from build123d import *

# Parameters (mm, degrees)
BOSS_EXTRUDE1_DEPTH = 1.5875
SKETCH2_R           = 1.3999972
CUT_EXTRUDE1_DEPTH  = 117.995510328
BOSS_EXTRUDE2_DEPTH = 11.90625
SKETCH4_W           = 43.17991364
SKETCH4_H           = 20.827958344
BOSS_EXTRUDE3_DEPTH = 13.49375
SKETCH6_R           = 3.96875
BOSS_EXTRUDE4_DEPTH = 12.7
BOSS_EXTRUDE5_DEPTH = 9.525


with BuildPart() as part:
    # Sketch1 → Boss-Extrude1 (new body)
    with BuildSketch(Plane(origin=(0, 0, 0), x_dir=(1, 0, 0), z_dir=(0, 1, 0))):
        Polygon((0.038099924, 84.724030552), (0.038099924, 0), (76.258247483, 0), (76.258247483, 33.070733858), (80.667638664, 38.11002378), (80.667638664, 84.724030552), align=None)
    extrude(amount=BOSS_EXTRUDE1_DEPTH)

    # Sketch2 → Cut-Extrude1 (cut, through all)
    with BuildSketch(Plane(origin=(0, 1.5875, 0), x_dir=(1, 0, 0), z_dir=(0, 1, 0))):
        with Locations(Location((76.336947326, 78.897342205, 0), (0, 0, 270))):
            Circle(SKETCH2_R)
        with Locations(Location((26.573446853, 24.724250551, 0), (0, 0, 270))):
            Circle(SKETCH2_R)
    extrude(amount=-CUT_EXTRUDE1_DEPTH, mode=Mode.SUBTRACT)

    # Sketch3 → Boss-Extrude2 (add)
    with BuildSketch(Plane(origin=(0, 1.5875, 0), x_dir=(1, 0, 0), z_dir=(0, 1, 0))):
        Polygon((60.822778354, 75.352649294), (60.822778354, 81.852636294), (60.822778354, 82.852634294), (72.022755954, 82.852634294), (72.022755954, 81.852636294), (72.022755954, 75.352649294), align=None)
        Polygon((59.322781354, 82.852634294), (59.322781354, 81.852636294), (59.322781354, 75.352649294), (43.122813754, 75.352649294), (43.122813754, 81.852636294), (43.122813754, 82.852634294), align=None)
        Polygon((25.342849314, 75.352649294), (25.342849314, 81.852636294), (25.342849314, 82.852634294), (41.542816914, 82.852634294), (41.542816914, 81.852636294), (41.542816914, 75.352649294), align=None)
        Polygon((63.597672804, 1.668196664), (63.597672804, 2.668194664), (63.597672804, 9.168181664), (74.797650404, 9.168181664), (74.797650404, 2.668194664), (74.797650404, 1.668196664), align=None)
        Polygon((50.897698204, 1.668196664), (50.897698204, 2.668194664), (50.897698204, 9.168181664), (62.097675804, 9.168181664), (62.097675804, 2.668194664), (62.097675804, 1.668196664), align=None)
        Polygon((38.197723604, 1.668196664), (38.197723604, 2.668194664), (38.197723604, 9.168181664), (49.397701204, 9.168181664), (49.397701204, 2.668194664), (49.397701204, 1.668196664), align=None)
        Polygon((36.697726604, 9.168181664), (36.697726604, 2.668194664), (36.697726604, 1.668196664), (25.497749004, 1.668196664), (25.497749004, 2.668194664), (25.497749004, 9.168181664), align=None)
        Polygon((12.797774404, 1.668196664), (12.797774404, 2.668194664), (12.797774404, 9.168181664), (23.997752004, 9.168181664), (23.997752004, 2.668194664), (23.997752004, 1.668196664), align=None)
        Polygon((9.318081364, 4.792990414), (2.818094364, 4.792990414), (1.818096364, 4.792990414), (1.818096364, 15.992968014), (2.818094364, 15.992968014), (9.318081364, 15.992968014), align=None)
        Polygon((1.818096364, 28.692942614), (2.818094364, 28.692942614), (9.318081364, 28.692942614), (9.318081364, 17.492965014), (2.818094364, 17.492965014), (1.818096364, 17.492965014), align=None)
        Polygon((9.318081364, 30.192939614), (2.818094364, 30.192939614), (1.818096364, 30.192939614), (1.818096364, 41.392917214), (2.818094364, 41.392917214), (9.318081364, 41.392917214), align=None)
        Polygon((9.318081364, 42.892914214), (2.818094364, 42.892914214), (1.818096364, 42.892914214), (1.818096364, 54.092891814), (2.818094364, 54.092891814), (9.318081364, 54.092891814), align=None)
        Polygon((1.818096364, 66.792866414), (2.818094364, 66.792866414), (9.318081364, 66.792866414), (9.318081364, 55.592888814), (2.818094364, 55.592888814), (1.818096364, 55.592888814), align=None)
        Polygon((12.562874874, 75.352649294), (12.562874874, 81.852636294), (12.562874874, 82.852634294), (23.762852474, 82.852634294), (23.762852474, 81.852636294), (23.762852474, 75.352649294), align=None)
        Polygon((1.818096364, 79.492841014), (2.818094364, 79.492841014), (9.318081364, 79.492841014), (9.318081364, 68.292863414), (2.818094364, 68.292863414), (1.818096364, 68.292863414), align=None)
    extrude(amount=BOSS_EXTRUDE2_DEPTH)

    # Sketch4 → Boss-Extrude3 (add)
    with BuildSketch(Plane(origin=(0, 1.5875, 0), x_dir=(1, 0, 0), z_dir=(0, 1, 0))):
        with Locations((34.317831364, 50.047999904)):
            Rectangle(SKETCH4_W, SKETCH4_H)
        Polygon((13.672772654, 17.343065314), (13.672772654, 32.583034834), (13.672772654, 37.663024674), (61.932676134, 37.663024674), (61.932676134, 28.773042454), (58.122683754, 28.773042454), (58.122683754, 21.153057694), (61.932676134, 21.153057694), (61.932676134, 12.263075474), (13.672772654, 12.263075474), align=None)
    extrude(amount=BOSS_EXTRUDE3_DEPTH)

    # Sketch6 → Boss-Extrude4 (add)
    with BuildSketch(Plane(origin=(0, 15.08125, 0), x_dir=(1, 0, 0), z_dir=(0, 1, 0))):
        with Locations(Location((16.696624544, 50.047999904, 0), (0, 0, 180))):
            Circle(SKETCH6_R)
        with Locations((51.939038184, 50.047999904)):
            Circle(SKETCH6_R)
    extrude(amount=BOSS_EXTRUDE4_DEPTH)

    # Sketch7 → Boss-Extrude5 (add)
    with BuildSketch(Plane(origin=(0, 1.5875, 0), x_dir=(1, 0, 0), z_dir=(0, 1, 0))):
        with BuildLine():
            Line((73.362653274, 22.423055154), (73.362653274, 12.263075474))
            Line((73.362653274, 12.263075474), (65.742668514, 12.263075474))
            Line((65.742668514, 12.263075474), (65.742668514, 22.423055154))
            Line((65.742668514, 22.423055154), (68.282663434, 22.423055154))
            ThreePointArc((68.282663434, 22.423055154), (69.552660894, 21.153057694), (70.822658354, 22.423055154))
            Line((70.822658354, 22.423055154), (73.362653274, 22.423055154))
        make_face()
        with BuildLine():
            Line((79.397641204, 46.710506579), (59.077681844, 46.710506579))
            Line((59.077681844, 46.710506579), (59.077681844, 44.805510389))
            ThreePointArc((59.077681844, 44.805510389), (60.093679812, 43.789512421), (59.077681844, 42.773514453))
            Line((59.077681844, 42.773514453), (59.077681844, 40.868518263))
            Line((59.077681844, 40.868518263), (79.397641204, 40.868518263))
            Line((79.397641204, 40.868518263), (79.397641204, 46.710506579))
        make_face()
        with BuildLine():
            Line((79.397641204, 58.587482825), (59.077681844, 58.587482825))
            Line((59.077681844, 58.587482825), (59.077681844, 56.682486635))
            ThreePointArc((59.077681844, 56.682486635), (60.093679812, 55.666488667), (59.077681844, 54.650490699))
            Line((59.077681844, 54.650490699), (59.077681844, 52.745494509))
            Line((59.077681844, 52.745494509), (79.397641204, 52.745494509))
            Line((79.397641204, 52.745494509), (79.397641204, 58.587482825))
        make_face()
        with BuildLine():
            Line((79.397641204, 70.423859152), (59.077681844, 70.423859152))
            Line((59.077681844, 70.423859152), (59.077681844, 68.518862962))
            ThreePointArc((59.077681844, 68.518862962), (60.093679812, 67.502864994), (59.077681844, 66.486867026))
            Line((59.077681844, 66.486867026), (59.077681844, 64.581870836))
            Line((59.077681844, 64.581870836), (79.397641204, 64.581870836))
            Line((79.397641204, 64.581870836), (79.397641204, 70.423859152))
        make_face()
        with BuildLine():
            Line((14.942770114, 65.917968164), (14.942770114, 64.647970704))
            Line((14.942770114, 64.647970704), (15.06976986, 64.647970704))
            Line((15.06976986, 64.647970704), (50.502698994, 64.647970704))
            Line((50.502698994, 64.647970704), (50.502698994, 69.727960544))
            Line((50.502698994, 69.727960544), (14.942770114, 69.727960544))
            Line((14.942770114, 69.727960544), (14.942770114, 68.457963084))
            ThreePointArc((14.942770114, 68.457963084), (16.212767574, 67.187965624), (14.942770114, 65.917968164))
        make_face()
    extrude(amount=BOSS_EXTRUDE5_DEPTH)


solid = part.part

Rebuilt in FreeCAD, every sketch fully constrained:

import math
import FreeCAD as App
import Part
import Sketcher
from FreeCAD import Vector
Q = App.Units.Quantity


def add_polygon(sketch, points):
    """Adds a closed chain of lines whose ends are joined by coincident constraints."""
    first, n = sketch.GeometryCount, len(points)
    for a, b in zip(points, points[1:] + points[:1]):
        sketch.addGeometry(Part.LineSegment(App.Vector(*a, 0), App.Vector(*b, 0)), False)
    for i in range(n):
        sketch.addConstraint(Sketcher.Constraint("Coincident", first + i, 2, first + (i + 1) % n, 1))

doc = App.newDocument("Part")
params = doc.addObject("Spreadsheet::Sheet", "Params")
for row, (alias, value) in enumerate([
    ("pad1_length", "0.0625 in"),
    ("pad2_length", "0.46875 in"),
    ("pad3_length", "0.53125 in"),
    ("sketch5_diameter", "0.3125 in"),
    ("pad4_length", "0.5 in"),
    ("sketch6_radius", "0.0499999 in"),
    ("sketch6_radius2", "0.0399999 in"),
    ("sketch6_height", "0.0499999 in"),
    ("sketch6_height2", "0.0749998 in"),
    ("pad5_length", "0.375 in"),
], start=1):
    params.set(f"A{row}", alias)
    params.set(f"B{row}", "=" + value)
    params.setAlias(f"B{row}", alias)

body = doc.addObject("PartDesign::Body", "Body")

# Sketch on XZ plane
sketch1 = body.newObject("Sketcher::SketchObject", "Sketch")
sketch1.AttachmentSupport = (doc.getObject("XZ_Plane"), [""])
sketch1.MapMode = "FlatFace"
add_polygon(sketch1, [(0, -85), (0, 0), (76, 0), (76, -33), (81, -38), (81, -85)])  # lines 0-5
sketch1.addConstraint([
    Sketcher.Constraint("Vertical", 0),
    Sketcher.Constraint("Horizontal", 1),
    Sketcher.Constraint("Vertical", 2),
    Sketcher.Constraint("Vertical", 4),
    Sketcher.Constraint("Horizontal", 5),
    Sketcher.Constraint("PointOnObject", 0, 2, -1),
    Sketcher.Constraint("DistanceX", -1, 1, 0, 2, Q("0.0015 in")),
    Sketcher.Constraint("DistanceX", 5, 2, 5, 1, 80.629539),
    Sketcher.Constraint("DistanceY", 0, 1, 0, 2, 84.724031),
    Sketcher.Constraint("DistanceX", 1, 1, 1, 2, 76.220148),
    Sketcher.Constraint("DistanceY", 2, 2, 2, 1, 33.070734),
    Sketcher.Constraint("DistanceY", 4, 2, 4, 1, 46.614007),
])
pad1 = body.newObject("PartDesign::Pad", "Pad")
pad1.Profile = sketch1
pad1.setExpression("Length", "Params.pad1_length")
pad1.Reversed = True

# Sketch on XZ plane
sketch2 = body.newObject("Sketcher::SketchObject", "Sketch001")
sketch2.AttachmentSupport = (doc.getObject("XZ_Plane"), [""])
sketch2.MapMode = "FlatFace"
sketch2.AttachmentOffset = App.Placement(Vector(0, 0, -0.0625 * 25.4), App.Rotation())
sketch2.addGeometry([
    Part.Circle(Vector(76.3, -78.9, 0), Vector(0, 0, 1), 1.4),
    Part.Circle(Vector(26.6, -24.7, 0), Vector(0, 0, 1), 1.4),
], False)
sketch2.addConstraint([
    Sketcher.Constraint("Equal", 0, 1),
    Sketcher.Constraint("Diameter", 0, 2.799994),
    Sketcher.Constraint("DistanceX", 1, 3, 0, 3, 49.7635),
    Sketcher.Constraint("DistanceY", 1, 3, -1, 1, 24.724251),
    Sketcher.Constraint("DistanceY", 0, 3, 1, 3, 54.173092),
    Sketcher.Constraint("DistanceX", -1, 1, 0, 3, 76.336947),
])
pocket1 = body.newObject("PartDesign::Pocket", "Pocket")
pocket1.Profile = sketch2
pocket1.Type = "ThroughAll"
pocket1.Reversed = True

# Sketch on XZ plane
sketch3 = body.newObject("Sketcher::SketchObject", "Sketch002")
sketch3.AttachmentSupport = (doc.getObject("XZ_Plane"), [""])
sketch3.MapMode = "FlatFace"
sketch3.AttachmentOffset = App.Placement(Vector(0, 0, -0.0625 * 25.4), App.Rotation())
add_polygon(sketch3, [(61, -83), (61, -75), (72, -75), (72, -83)])  # lines 0-3
add_polygon(sketch3, [(59, -75), (59, -83), (43, -83), (43, -75)])  # lines 4-7
add_polygon(sketch3, [(25, -83), (25, -75), (42, -75), (42, -83)])  # lines 8-11
add_polygon(sketch3, [(64, -9), (64, -2), (75, -2), (75, -9)])  # lines 12-15
add_polygon(sketch3, [(51, -9), (51, -2), (62, -2), (62, -9)])  # lines 16-19
add_polygon(sketch3, [(38, -9), (38, -2), (49, -2), (49, -9)])  # lines 20-23
add_polygon(sketch3, [(37, -2), (37, -9), (25, -9), (25, -2)])  # lines 24-27
add_polygon(sketch3, [(13, -9), (13, -2), (24, -2), (24, -9)])  # lines 28-31
add_polygon(sketch3, [(2, -5), (9, -5), (9, -16), (2, -16)])  # lines 32-35
add_polygon(sketch3, [(9, -29), (2, -29), (2, -17), (9, -17)])  # lines 36-39
add_polygon(sketch3, [(2, -30), (9, -30), (9, -41), (2, -41)])  # lines 40-43
add_polygon(sketch3, [(2, -43), (9, -43), (9, -54), (2, -54)])  # lines 44-47
add_polygon(sketch3, [(9, -67), (2, -67), (2, -56), (9, -56)])  # lines 48-51
add_polygon(sketch3, [(13, -83), (13, -75), (24, -75), (24, -83)])  # lines 52-55
add_polygon(sketch3, [(9, -79), (2, -79), (2, -68), (9, -68)])  # lines 56-59
sketch3.addConstraint([
    Sketcher.Constraint("Vertical", 0),
    Sketcher.Constraint("Horizontal", 1),
    Sketcher.Constraint("Vertical", 2),
    Sketcher.Constraint("Horizontal", 3),
    Sketcher.Constraint("Vertical", 4),
    Sketcher.Constraint("Horizontal", 5),
    Sketcher.Constraint("Vertical", 6),
    Sketcher.Constraint("Horizontal", 7),
    Sketcher.Constraint("Vertical", 8),
    Sketcher.Constraint("Horizontal", 9),
    Sketcher.Constraint("Vertical", 10),
    Sketcher.Constraint("Horizontal", 11),
    Sketcher.Constraint("Vertical", 12),
    Sketcher.Constraint("Horizontal", 13),
    Sketcher.Constraint("Vertical", 14),
    Sketcher.Constraint("Horizontal", 15),
    Sketcher.Constraint("Vertical", 16),
    Sketcher.Constraint("Horizontal", 17),
    Sketcher.Constraint("Vertical", 18),
    Sketcher.Constraint("Horizontal", 19),
    Sketcher.Constraint("Vertical", 20),
    Sketcher.Constraint("Horizontal", 21),
    Sketcher.Constraint("Vertical", 22),
    Sketcher.Constraint("Horizontal", 23),
    Sketcher.Constraint("Vertical", 24),
    Sketcher.Constraint("Horizontal", 25),
    Sketcher.Constraint("Vertical", 26),
    Sketcher.Constraint("Horizontal", 27),
    Sketcher.Constraint("Vertical", 28),
    Sketcher.Constraint("Horizontal", 29),
    Sketcher.Constraint("Vertical", 30),
    Sketcher.Constraint("Horizontal", 31),
    Sketcher.Constraint("Horizontal", 32),
    Sketcher.Constraint("Vertical", 33),
    Sketcher.Constraint("Horizontal", 34),
    Sketcher.Constraint("Vertical", 35),
    Sketcher.Constraint("Horizontal", 36),
    Sketcher.Constraint("Vertical", 37),
    Sketcher.Constraint("Horizontal", 38),
    Sketcher.Constraint("Vertical", 39),
    Sketcher.Constraint("Horizontal", 40),
    Sketcher.Constraint("Vertical", 41),
    Sketcher.Constraint("Horizontal", 42),
    Sketcher.Constraint("Vertical", 43),
    Sketcher.Constraint("Horizontal", 44),
    Sketcher.Constraint("Vertical", 45),
    Sketcher.Constraint("Horizontal", 46),
    Sketcher.Constraint("Vertical", 47),
    Sketcher.Constraint("Horizontal", 48),
    Sketcher.Constraint("Vertical", 49),
    Sketcher.Constraint("Horizontal", 50),
    Sketcher.Constraint("Vertical", 51),
    Sketcher.Constraint("Vertical", 52),
    Sketcher.Constraint("Horizontal", 53),
    Sketcher.Constraint("Vertical", 54),
    Sketcher.Constraint("Horizontal", 55),
    Sketcher.Constraint("Horizontal", 56),
    Sketcher.Constraint("Vertical", 57),
    Sketcher.Constraint("Horizontal", 58),
    Sketcher.Constraint("Vertical", 59),
    Sketcher.Constraint("Horizontal", 3, 2, 4, 2),
    Sketcher.Constraint("Horizontal", 1, 2, 6, 2),
    Sketcher.Constraint("Horizontal", 7, 2, 8, 2),
    Sketcher.Constraint("Horizontal", 5, 2, 10, 2),
    Sketcher.Constraint("Horizontal", 13, 2, 16, 2),
    Sketcher.Constraint("Horizontal", 15, 2, 18, 2),
    Sketcher.Constraint("Horizontal", 17, 2, 20, 2),
    Sketcher.Constraint("Horizontal", 19, 2, 22, 2),
    Sketcher.Constraint("Horizontal", 23, 2, 24, 2),
    Sketcher.Constraint("Horizontal", 21, 2, 26, 2),
    Sketcher.Constraint("Horizontal", 27, 2, 28, 2),
    Sketcher.Constraint("Horizontal", 25, 2, 30, 2),
    Sketcher.Constraint("Horizontal", 9, 2, 52, 2),
    Sketcher.Constraint("Horizontal", 11, 2, 54, 2),
    Sketcher.Constraint("Vertical", 35, 2, 36, 2),
    Sketcher.Constraint("Vertical", 33, 2, 38, 2),
    Sketcher.Constraint("Vertical", 39, 2, 40, 2),
    Sketcher.Constraint("Vertical", 37, 2, 42, 2),
    Sketcher.Constraint("Vertical", 41, 2, 44, 2),
    Sketcher.Constraint("Vertical", 43, 2, 46, 2),
    Sketcher.Constraint("Vertical", 47, 2, 48, 2),
    Sketcher.Constraint("Vertical", 45, 2, 50, 2),
    Sketcher.Constraint("Vertical", 49, 2, 56, 2),
    Sketcher.Constraint("Vertical", 51, 2, 58, 2),
    Sketcher.Constraint("Equal", 7, 9),
    Sketcher.Constraint("Equal", 3, 13),
    Sketcher.Constraint("Equal", 15, 17),
    Sketcher.Constraint("Equal", 19, 21),
    Sketcher.Constraint("Equal", 23, 25),
    Sketcher.Constraint("Equal", 27, 29),
    Sketcher.Constraint("Equal", 31, 53),
    Sketcher.Constraint("Equal", 58, 0),
    Sketcher.Constraint("Equal", 10, 12),
    Sketcher.Constraint("Equal", 55, 33),
    Sketcher.Constraint("Equal", 35, 37),
    Sketcher.Constraint("Equal", 39, 41),
    Sketcher.Constraint("Equal", 43, 45),
    Sketcher.Constraint("Equal", 47, 49),
    Sketcher.Constraint("Equal", 51, 57),
    Sketcher.Constraint("DistanceX", -1, 1, 16, 2, 50.897698),
    Sketcher.Constraint("DistanceX", -1, 1, 21, 2, 49.397701),
    Sketcher.Constraint("DistanceX", 1, 1, 1, 2, 11.199978),
    Sketcher.Constraint("DistanceX", 5, 2, 5, 1, 16.199968),
    Sketcher.Constraint("DistanceX", 32, 1, 32, 2, 7.499985),
    Sketcher.Constraint("DistanceX", -1, 1, 0, 2, 60.822778),
    Sketcher.Constraint("DistanceY", 0, 2, -1, 1, 75.352649),
    Sketcher.Constraint("DistanceX", -1, 1, 4, 2, 59.322781),
    Sketcher.Constraint("DistanceX", -1, 1, 8, 2, 25.342849),
    Sketcher.Constraint("DistanceX", -1, 1, 13, 2, 74.79765),
    Sketcher.Constraint("DistanceY", 14, 2, -1, 1, 9.168182),
    Sketcher.Constraint("DistanceX", -1, 1, 25, 2, 25.497749),
    Sketcher.Constraint("DistanceX", -1, 1, 32, 2, 9.318081),
    Sketcher.Constraint("DistanceY", 32, 2, -1, 1, 4.79299),
    Sketcher.Constraint("DistanceY", 40, 2, -1, 1, 30.19294),
    Sketcher.Constraint("DistanceY", 45, 2, -1, 1, 54.092892),
    Sketcher.Constraint("DistanceY", 49, 2, -1, 1, 55.592889),
    Sketcher.Constraint("DistanceY", 56, 2, -1, 1, 79.492841),
    Sketcher.Constraint("DistanceX", 28, 2, 20, 2, 25.399949),
    Sketcher.Constraint("DistanceY", 36, 2, 31, 2, 19.524761),
    Sketcher.Constraint("DistanceX", 48, 2, 52, 2, 10.744779),
])
pad2 = body.newObject("PartDesign::Pad", "Pad001")
pad2.Profile = sketch3
pad2.setExpression("Length", "Params.pad2_length")
pad2.Reversed = True

# Sketch on XZ plane
sketch4 = body.newObject("Sketcher::SketchObject", "Sketch003")
sketch4.AttachmentSupport = (doc.getObject("XZ_Plane"), [""])
sketch4.MapMode = "FlatFace"
sketch4.AttachmentOffset = App.Placement(Vector(0, 0, -0.0625 * 25.4), App.Rotation())
add_polygon(sketch4, [(12.7, -60.5), (12.7, -39.6), (55.9, -39.6), (55.9, -60.5)])  # lines 0-3
add_polygon(sketch4, [(13.7, -37.7), (13.7, -12.3), (61.9, -12.3), (61.9, -21.2), (58.1, -21.2), (58.1, -28.8), (61.9, -28.8), (61.9, -37.7)])  # lines 4-11
sketch4.addConstraint([
    Sketcher.Constraint("Vertical", 0),
    Sketcher.Constraint("Horizontal", 1),
    Sketcher.Constraint("Vertical", 2),
    Sketcher.Constraint("Horizontal", 3),
    Sketcher.Constraint("Vertical", 4),
    Sketcher.Constraint("Horizontal", 5),
    Sketcher.Constraint("Vertical", 6),
    Sketcher.Constraint("Horizontal", 7),
    Sketcher.Constraint("Vertical", 8),
    Sketcher.Constraint("Horizontal", 9),
    Sketcher.Constraint("Vertical", 10),
    Sketcher.Constraint("Horizontal", 11),
    Sketcher.Constraint("Vertical", 6, 2, 9, 2),
    Sketcher.Constraint("Equal", 6, 10),
    Sketcher.Constraint("DistanceY", 0, 1, 0, 2, 20.827958),
    Sketcher.Constraint("DistanceY", 4, 1, 4, 2, 25.399949),
    Sketcher.Constraint("DistanceX", 0, 2, 4, 2, 0.944898),
    Sketcher.Constraint("DistanceX", 0, 2, 5, 2, 49.204802),
    Sketcher.Constraint("DistanceX", 1, 1, 1, 2, 43.179914),
    Sketcher.Constraint("DistanceX", 7, 2, 7, 1, 3.809992),
    Sketcher.Constraint("DistanceY", 6, 2, 6, 1, 8.889982),
    Sketcher.Constraint("DistanceY", 0, 2, -1, 1, 39.634021),
    Sketcher.Constraint("DistanceX", -1, 1, 1, 2, 55.907788),
    Sketcher.Constraint("DistanceY", 2, 2, 6, 2, 39.308921),
])
pad3 = body.newObject("PartDesign::Pad", "Pad002")
pad3.Profile = sketch4
pad3.setExpression("Length", "Params.pad3_length")
pad3.Reversed = True

# Sketch on XZ plane
sketch5 = body.newObject("Sketcher::SketchObject", "Sketch004")
sketch5.AttachmentSupport = (doc.getObject("XZ_Plane"), [""])
sketch5.MapMode = "FlatFace"
sketch5.AttachmentOffset = App.Placement(Vector(0, 0, -0.59375 * 25.4), App.Rotation())
sketch5.addGeometry([
    Part.Circle(Vector(16.7, -50, 0), Vector(0, 0, 1), 4),
    Part.Circle(Vector(51.9, -50, 0), Vector(0, 0, 1), 4),
], False)
sketch5.addConstraint([
    Sketcher.Constraint("Equal", 0, 1),
    Sketcher.Constraint("Horizontal", 0, 3, 1, 3),
    Sketcher.Constraint("Diameter", 0, Q("0.3125 in")),
    Sketcher.Constraint("DistanceY", 0, 3, -1, 1, 50.048),
    Sketcher.Constraint("DistanceX", -1, 1, 1, 3, 51.939038),
    Sketcher.Constraint("DistanceX", -1, 1, 0, 3, 16.696625),
])
sketch5.setExpression("Constraints[2]", "Params.sketch5_diameter")
pad4 = body.newObject("PartDesign::Pad", "Pad003")
pad4.Profile = sketch5
pad4.setExpression("Length", "Params.pad4_length")
pad4.Reversed = True

# Sketch on XZ plane
sketch6 = body.newObject("Sketcher::SketchObject", "Sketch005")
sketch6.AttachmentSupport = (doc.getObject("XZ_Plane"), [""])
sketch6.MapMode = "FlatFace"
sketch6.AttachmentOffset = App.Placement(Vector(0, 0, -0.0625 * 25.4), App.Rotation())
sketch6.addGeometry([
    Part.LineSegment(Vector(73.4, -12.3, 0), Vector(73.4, -22.4, 0)),  # 0
    Part.LineSegment(Vector(73.4, -22.4, 0), Vector(70.8, -22.4, 0)),  # 1
    Part.ArcOfCircle(Part.Circle(Vector(69.6, -22.4, 0), Vector(0, 0, 1), 1.3), math.radians(0), math.radians(180)),  # 2
    Part.LineSegment(Vector(68.3, -22.4, 0), Vector(65.7, -22.4, 0)),  # 3
    Part.LineSegment(Vector(65.7, -22.4, 0), Vector(65.7, -12.3, 0)),  # 4
    Part.LineSegment(Vector(65.7, -12.3, 0), Vector(73.4, -12.3, 0)),  # 5
    Part.LineSegment(Vector(79.4, -46.7, 0), Vector(59.1, -46.7, 0)),  # 6
    Part.LineSegment(Vector(59.1, -46.7, 0), Vector(59.1, -44.8, 0)),  # 7
    Part.ArcOfCircle(Part.Circle(Vector(59.1, -43.8, 0), Vector(0, 0, 1), 1), math.radians(-90), math.radians(90)),  # 8
    Part.LineSegment(Vector(59.1, -42.8, 0), Vector(59.1, -40.9, 0)),  # 9
    Part.LineSegment(Vector(59.1, -40.9, 0), Vector(79.4, -40.9, 0)),  # 10
    Part.LineSegment(Vector(79.4, -40.9, 0), Vector(79.4, -46.7, 0)),  # 11
    Part.LineSegment(Vector(79.4, -58.6, 0), Vector(59.1, -58.6, 0)),  # 12
    Part.LineSegment(Vector(59.1, -58.6, 0), Vector(59.1, -56.7, 0)),  # 13
    Part.ArcOfCircle(Part.Circle(Vector(59.1, -55.7, 0), Vector(0, 0, 1), 1), math.radians(-90), math.radians(90)),  # 14
    Part.LineSegment(Vector(59.1, -54.7, 0), Vector(59.1, -52.7, 0)),  # 15
    Part.LineSegment(Vector(59.1, -52.7, 0), Vector(79.4, -52.7, 0)),  # 16
    Part.LineSegment(Vector(79.4, -52.7, 0), Vector(79.4, -58.6, 0)),  # 17
    Part.LineSegment(Vector(79.4, -70.4, 0), Vector(59.1, -70.4, 0)),  # 18
    Part.LineSegment(Vector(59.1, -70.4, 0), Vector(59.1, -68.5, 0)),  # 19
    Part.ArcOfCircle(Part.Circle(Vector(59.1, -67.5, 0), Vector(0, 0, 1), 1), math.radians(-90), math.radians(90)),  # 20
    Part.LineSegment(Vector(59.1, -66.5, 0), Vector(59.1, -64.6, 0)),  # 21
    Part.LineSegment(Vector(59.1, -64.6, 0), Vector(79.4, -64.6, 0)),  # 22
    Part.LineSegment(Vector(79.4, -64.6, 0), Vector(79.4, -70.4, 0)),  # 23
    Part.LineSegment(Vector(14.9, -65.9, 0), Vector(14.9, -64.6, 0)),  # 24
    Part.LineSegment(Vector(14.9, -64.6, 0), Vector(50.5, -64.6, 0)),  # 25
    Part.LineSegment(Vector(50.5, -64.6, 0), Vector(50.5, -69.7, 0)),  # 26
    Part.LineSegment(Vector(50.5, -69.7, 0), Vector(14.9, -69.7, 0)),  # 27
    Part.LineSegment(Vector(14.9, -69.7, 0), Vector(14.9, -68.5, 0)),  # 28
    Part.ArcOfCircle(Part.Circle(Vector(14.9, -67.2, 0), Vector(0, 0, 1), 1.3), math.radians(-90), math.radians(90)),  # 29
], False)
sketch6.addConstraint([
    Sketcher.Constraint("Coincident", 0, 2, 1, 1),
    Sketcher.Constraint("Coincident", 1, 2, 2, 1),
    Sketcher.Constraint("Coincident", 2, 2, 3, 1),
    Sketcher.Constraint("Coincident", 3, 2, 4, 1),
    Sketcher.Constraint("Coincident", 4, 2, 5, 1),
    Sketcher.Constraint("Coincident", 5, 2, 0, 1),
    Sketcher.Constraint("Coincident", 6, 2, 7, 1),
    Sketcher.Constraint("Coincident", 7, 2, 8, 1),
    Sketcher.Constraint("Coincident", 8, 2, 9, 1),
    Sketcher.Constraint("Coincident", 9, 2, 10, 1),
    Sketcher.Constraint("Coincident", 10, 2, 11, 1),
    Sketcher.Constraint("Coincident", 11, 2, 6, 1),
    Sketcher.Constraint("Coincident", 12, 2, 13, 1),
    Sketcher.Constraint("Coincident", 13, 2, 14, 1),
    Sketcher.Constraint("Coincident", 14, 2, 15, 1),
    Sketcher.Constraint("Coincident", 15, 2, 16, 1),
    Sketcher.Constraint("Coincident", 16, 2, 17, 1),
    Sketcher.Constraint("Coincident", 17, 2, 12, 1),
    Sketcher.Constraint("Coincident", 18, 2, 19, 1),
    Sketcher.Constraint("Coincident", 19, 2, 20, 1),
    Sketcher.Constraint("Coincident", 20, 2, 21, 1),
    Sketcher.Constraint("Coincident", 21, 2, 22, 1),
    Sketcher.Constraint("Coincident", 22, 2, 23, 1),
    Sketcher.Constraint("Coincident", 23, 2, 18, 1),
    Sketcher.Constraint("Coincident", 24, 2, 25, 1),
    Sketcher.Constraint("Coincident", 25, 2, 26, 1),
    Sketcher.Constraint("Coincident", 26, 2, 27, 1),
    Sketcher.Constraint("Coincident", 27, 2, 28, 1),
    Sketcher.Constraint("Coincident", 28, 2, 29, 1),
    Sketcher.Constraint("Coincident", 29, 2, 24, 1),
    Sketcher.Constraint("Vertical", 0),
    Sketcher.Constraint("Horizontal", 1),
    Sketcher.Constraint("Horizontal", 3),
    Sketcher.Constraint("Vertical", 4),
    Sketcher.Constraint("Horizontal", 5),
    Sketcher.Constraint("Horizontal", 6),
    Sketcher.Constraint("Vertical", 7),
    Sketcher.Constraint("Vertical", 9),
    Sketcher.Constraint("Horizontal", 10),
    Sketcher.Constraint("Vertical", 11),
    Sketcher.Constraint("Horizontal", 12),
    Sketcher.Constraint("Vertical", 13),
    Sketcher.Constraint("Vertical", 15),
    Sketcher.Constraint("Horizontal", 16),
    Sketcher.Constraint("Vertical", 17),
    Sketcher.Constraint("Horizontal", 18),
    Sketcher.Constraint("Vertical", 19),
    Sketcher.Constraint("Vertical", 21),
    Sketcher.Constraint("Horizontal", 22),
    Sketcher.Constraint("Vertical", 23),
    Sketcher.Constraint("Vertical", 24),
    Sketcher.Constraint("Horizontal", 25),
    Sketcher.Constraint("Vertical", 26),
    Sketcher.Constraint("Horizontal", 27),
    Sketcher.Constraint("Vertical", 28),
    Sketcher.Constraint("Equal", 8, 14),
    Sketcher.Constraint("Equal", 14, 20),
    Sketcher.Constraint("Equal", 2, 29),
    Sketcher.Constraint("Horizontal", 2, 3, 0, 2),
    Sketcher.Constraint("Horizontal", 1, 2, 2, 2),
    Sketcher.Constraint("Vertical", 8, 3, 14, 3),
    Sketcher.Constraint("Vertical", 14, 3, 20, 3),
    Sketcher.Constraint("Vertical", 20, 3, 6, 2),
    Sketcher.Constraint("Vertical", 7, 2, 8, 2),
    Sketcher.Constraint("Vertical", 9, 2, 12, 2),
    Sketcher.Constraint("Vertical", 13, 2, 14, 2),
    Sketcher.Constraint("Vertical", 11, 2, 16, 2),
    Sketcher.Constraint("Vertical", 15, 2, 18, 2),
    Sketcher.Constraint("Vertical", 19, 2, 20, 2),
    Sketcher.Constraint("Vertical", 17, 2, 22, 2),
    Sketcher.Constraint("Vertical", 29, 3, 24, 2),
    Sketcher.Constraint("Vertical", 24, 2, 27, 2),
    Sketcher.Constraint("Equal", 1, 3),
    Sketcher.Constraint("Equal", 7, 9),
    Sketcher.Constraint("Equal", 9, 13),
    Sketcher.Constraint("Equal", 13, 15),
    Sketcher.Constraint("Equal", 15, 19),
    Sketcher.Constraint("Equal", 19, 21),
    Sketcher.Constraint("Equal", 24, 28),
    Sketcher.Constraint("Radius", 2, Q("0.0499999 in")),
    Sketcher.Constraint("Radius", 8, Q("0.0399999 in")),
    Sketcher.Constraint("DistanceY", 24, 1, 24, 2, Q("0.0499999 in")),
    Sketcher.Constraint("DistanceY", 7, 1, 7, 2, Q("0.0749998 in")),
    Sketcher.Constraint("DistanceX", 6, 2, 6, 1, 20.319959),
    Sketcher.Constraint("DistanceX", 25, 1, 25, 2, 35.559929),
    Sketcher.Constraint("DistanceY", 0, 2, 0, 1, 10.15998),
    Sketcher.Constraint("DistanceX", -1, 1, 25, 2, 50.502699),
    Sketcher.Constraint("DistanceY", 20, 3, 29, 3, 0.314899),
    Sketcher.Constraint("DistanceX", 1, 2, 1, 1, 2.539995),
    Sketcher.Constraint("DistanceX", -1, 1, 2, 3, 69.552661),
    Sketcher.Constraint("DistanceX", -1, 1, 8, 3, 59.077682),
    Sketcher.Constraint("DistanceY", 14, 3, -1, 1, 55.666489),
    Sketcher.Constraint("DistanceY", 7, 2, -1, 1, 44.80551),
    Sketcher.Constraint("DistanceY", 18, 2, -1, 1, 70.423859),
    Sketcher.Constraint("DistanceY", 20, 3, 2, 3, 45.07981),
])
sketch6.setExpression("Constraints[79]", "Params.sketch6_radius")
sketch6.setExpression("Constraints[80]", "Params.sketch6_radius2")
sketch6.setExpression("Constraints[81]", "Params.sketch6_height")
sketch6.setExpression("Constraints[82]", "Params.sketch6_height2")
pad5 = body.newObject("PartDesign::Pad", "Pad004")
pad5.Profile = sketch6
pad5.setExpression("Length", "Params.pad5_length")
pad5.Reversed = True

doc.recompute()
